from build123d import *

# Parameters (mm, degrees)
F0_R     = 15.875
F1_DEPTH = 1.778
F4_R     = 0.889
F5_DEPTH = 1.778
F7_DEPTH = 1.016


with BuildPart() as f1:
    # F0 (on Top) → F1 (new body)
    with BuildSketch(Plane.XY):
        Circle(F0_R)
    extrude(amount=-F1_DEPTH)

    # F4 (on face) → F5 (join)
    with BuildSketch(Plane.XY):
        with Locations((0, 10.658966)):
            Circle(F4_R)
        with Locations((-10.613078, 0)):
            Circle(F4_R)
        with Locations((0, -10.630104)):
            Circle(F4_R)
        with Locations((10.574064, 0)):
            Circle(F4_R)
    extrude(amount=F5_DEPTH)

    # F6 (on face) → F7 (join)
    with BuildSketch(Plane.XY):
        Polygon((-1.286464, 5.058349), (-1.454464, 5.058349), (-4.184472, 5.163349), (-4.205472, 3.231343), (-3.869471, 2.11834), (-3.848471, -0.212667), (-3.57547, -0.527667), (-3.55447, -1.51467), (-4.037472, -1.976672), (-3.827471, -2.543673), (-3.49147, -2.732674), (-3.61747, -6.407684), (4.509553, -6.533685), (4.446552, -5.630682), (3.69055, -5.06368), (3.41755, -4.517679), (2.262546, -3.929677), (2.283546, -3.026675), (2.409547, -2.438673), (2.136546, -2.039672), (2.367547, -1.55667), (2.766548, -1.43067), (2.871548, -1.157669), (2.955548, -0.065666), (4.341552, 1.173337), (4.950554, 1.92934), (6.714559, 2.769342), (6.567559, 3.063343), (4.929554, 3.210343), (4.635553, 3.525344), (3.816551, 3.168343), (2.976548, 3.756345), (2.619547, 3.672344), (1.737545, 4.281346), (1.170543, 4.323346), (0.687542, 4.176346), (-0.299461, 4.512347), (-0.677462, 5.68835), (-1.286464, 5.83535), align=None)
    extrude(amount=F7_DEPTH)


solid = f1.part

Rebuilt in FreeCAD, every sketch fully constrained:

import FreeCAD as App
import Part
import Sketcher
from FreeCAD import Vector
Q = App.Units.Quantity

doc = App.newDocument("Part")
body = doc.addObject("PartDesign::Body", "Body")

sketch1 = body.newObject("Sketcher::SketchObject", "Sketch")
sketch1.AttachmentSupport = (doc.getObject("XY_Plane"), [""])
sketch1.MapMode = "FlatFace"
sketch1.addGeometry(Part.Circle(Vector(0, 0, 0), Vector(0, 0, 1), 15.875), False)
sketch1.addConstraint([
    Sketcher.Constraint("Coincident", 0, 3, -1, 1),
    Sketcher.Constraint("Diameter", 0, Q("1.25 in")),
])
pad1 = body.newObject("PartDesign::Pad", "Pad")
pad1.Profile = sketch1
pad1.Length = Q("0.07 in")
pad1.Reversed = True

sketch2 = body.newObject("Sketcher::SketchObject", "Sketch001")
sketch2.AttachmentSupport = (doc.getObject("XY_Plane"), [""])
sketch2.MapMode = "FlatFace"
sketch2.addGeometry([
    Part.Circle(Vector(0, 10.658966, 0), Vector(0, 0, 1), 0.889),
    Part.Circle(Vector(-10.613078, 0, 0), Vector(0, 0, 1), 0.889),
    Part.Circle(Vector(0, -10.630104, 0), Vector(0, 0, 1), 0.889),
    Part.Circle(Vector(10.574064, 0, 0), Vector(0, 0, 1), 0.889),
], False)
sketch2.addConstraint([
    Sketcher.Constraint("Equal", 0, 1),
    Sketcher.Constraint("Equal", 1, 2),
    Sketcher.Constraint("Equal", 2, 3),
    Sketcher.Constraint("PointOnObject", 0, 3, -2),
    Sketcher.Constraint("PointOnObject", 1, 3, -1),
    Sketcher.Constraint("PointOnObject", 2, 3, -2),
    Sketcher.Constraint("PointOnObject", 3, 3, -1),
    Sketcher.Constraint("Diameter", 0, Q("0.07 in")),
    Sketcher.Constraint("DistanceY", 2, 3, 0, 3, Q("21.28907 mm")),
    Sketcher.Constraint("DistanceY", -1, 1, 0, 3, Q("10.658966 mm")),
    Sketcher.Constraint("DistanceX", 1, 3, -1, 1, Q("10.613078 mm")),
    Sketcher.Constraint("DistanceX", -1, 1, 3, 3, Q("10.574064 mm")),
])
pad2 = body.newObject("PartDesign::Pad", "Pad001")
pad2.Profile = sketch2
pad2.Length = Q("0.07 in")

sketch3 = body.newObject("Sketcher::SketchObject", "Sketch002")
sketch3.AttachmentSupport = (doc.getObject("XY_Plane"), [""])
sketch3.MapMode = "FlatFace"
sketch3.addGeometry([
    Part.LineSegment(Vector(-1.286464, 5.058349, 0), Vector(-1.454464, 5.058349, 0)),
    Part.LineSegment(Vector(-1.454464, 5.058349, 0), Vector(-4.184472, 5.163349, 0)),
    Part.LineSegment(Vector(-4.184472, 5.163349, 0), Vector(-4.205472, 3.231343, 0)),
    Part.LineSegment(Vector(-4.205472, 3.231343, 0), Vector(-3.869471, 2.11834, 0)),
    Part.LineSegment(Vector(-3.869471, 2.11834, 0), Vector(-3.848471, -0.212667, 0)),
    Part.LineSegment(Vector(-3.848471, -0.212667, 0), Vector(-3.57547, -0.527667, 0)),
    Part.LineSegment(Vector(-3.57547, -0.527667, 0), Vector(-3.55447, -1.51467, 0)),
    Part.LineSegment(Vector(-3.55447, -1.51467, 0), Vector(-4.037472, -1.976672, 0)),
    Part.LineSegment(Vector(-4.037472, -1.976672, 0), Vector(-3.827471, -2.543673, 0)),
    Part.LineSegment(Vector(-3.827471, -2.543673, 0), Vector(-3.49147, -2.732674, 0)),
    Part.LineSegment(Vector(-3.49147, -2.732674, 0), Vector(-3.61747, -6.407684, 0)),
    Part.LineSegment(Vector(-3.61747, -6.407684, 0), Vector(4.509553, -6.533685, 0)),
    Part.LineSegment(Vector(4.509553, -6.533685, 0), Vector(4.446552, -5.630682, 0)),
    Part.LineSegment(Vector(4.446552, -5.630682, 0), Vector(3.69055, -5.06368, 0)),
    Part.LineSegment(Vector(3.69055, -5.06368, 0), Vector(3.41755, -4.517679, 0)),
    Part.LineSegment(Vector(3.41755, -4.517679, 0), Vector(2.262546, -3.929677, 0)),
    Part.LineSegment(Vector(2.262546, -3.929677, 0), Vector(2.283546, -3.026675, 0)),
    Part.LineSegment(Vector(2.283546, -3.026675, 0), Vector(2.409547, -2.438673, 0)),
    Part.LineSegment(Vector(2.409547, -2.438673, 0), Vector(2.136546, -2.039672, 0)),
    Part.LineSegment(Vector(2.136546, -2.039672, 0), Vector(2.367547, -1.55667, 0)),
    Part.LineSegment(Vector(2.367547, -1.55667, 0), Vector(2.766548, -1.43067, 0)),
    Part.LineSegment(Vector(2.766548, -1.43067, 0), Vector(2.871548, -1.157669, 0)),
    Part.LineSegment(Vector(2.871548, -1.157669, 0), Vector(2.955548, -0.065666, 0)),
    Part.LineSegment(Vector(2.955548, -0.065666, 0), Vector(4.341552, 1.173337, 0)),
    Part.LineSegment(Vector(4.341552, 1.173337, 0), Vector(4.950554, 1.92934, 0)),
    Part.LineSegment(Vector(4.950554, 1.92934, 0), Vector(6.714559, 2.769342, 0)),
    Part.LineSegment(Vector(6.714559, 2.769342, 0), Vector(6.567559, 3.063343, 0)),
    Part.LineSegment(Vector(6.567559, 3.063343, 0), Vector(4.929554, 3.210343, 0)),
    Part.LineSegment(Vector(4.929554, 3.210343, 0), Vector(4.635553, 3.525344, 0)),
    Part.LineSegment(Vector(4.635553, 3.525344, 0), Vector(3.816551, 3.168343, 0)),
    Part.LineSegment(Vector(3.816551, 3.168343, 0), Vector(2.976548, 3.756345, 0)),
    Part.LineSegment(Vector(2.976548, 3.756345, 0), Vector(2.619547, 3.672344, 0)),
    Part.LineSegment(Vector(2.619547, 3.672344, 0), Vector(1.737545, 4.281346, 0)),
    Part.LineSegment(Vector(1.737545, 4.281346, 0), Vector(1.170543, 4.323346, 0)),
    Part.LineSegment(Vector(1.170543, 4.323346, 0), Vector(0.687542, 4.176346, 0)),
    Part.LineSegment(Vector(0.687542, 4.176346, 0), Vector(-0.299461, 4.512347, 0)),
    Part.LineSegment(Vector(-0.299461, 4.512347, 0), Vector(-0.677462, 5.68835, 0)),
    Part.LineSegment(Vector(-0.677462, 5.68835, 0), Vector(-1.286464, 5.83535, 0)),
    Part.LineSegment(Vector(-1.286464, 5.83535, 0), Vector(-1.286464, 5.058349, 0)),
], False)
sketch3.addConstraint([
    Sketcher.Constraint("Coincident", 0, 2, 1, 1),
    Sketcher.Constraint("Coincident", 1, 2, 2, 1),
    Sketcher.Constraint("Coincident", 2, 2, 3, 1),
    Sketcher.Constraint("Coincident", 3, 2, 4, 1),
    Sketcher.Constraint("Coincident", 4, 2, 5, 1),
    Sketcher.Constraint("Coincident", 5, 2, 6, 1),
    Sketcher.Constraint("Coincident", 6, 2, 7, 1),
    Sketcher.Constraint("Coincident", 7, 2, 8, 1),
    Sketcher.Constraint("Coincident", 8, 2, 9, 1),
    Sketcher.Constraint("Coincident", 9, 2, 10, 1),
    Sketcher.Constraint("Coincident", 10, 2, 11, 1),
    Sketcher.Constraint("Coincident", 11, 2, 12, 1),
    Sketcher.Constraint("Coincident", 12, 2, 13, 1),
    Sketcher.Constraint("Coincident", 13, 2, 14, 1),
    Sketcher.Constraint("Coincident", 14, 2, 15, 1),
    Sketcher.Constraint("Coincident", 15, 2, 16, 1),
    Sketcher.Constraint("Coincident", 16, 2, 17, 1),
    Sketcher.Constraint("Coincident", 17, 2, 18, 1),
    Sketcher.Constraint("Coincident", 18, 2, 19, 1),
    Sketcher.Constraint("Coincident", 19, 2, 20, 1),
    Sketcher.Constraint("Coincident", 20, 2, 21, 1),
    Sketcher.Constraint("Coincident", 21, 2, 22, 1),
    Sketcher.Constraint("Coincident", 22, 2, 23, 1),
    Sketcher.Constraint("Coincident", 23, 2, 24, 1),
    Sketcher.Constraint("Coincident", 24, 2, 25, 1),
    Sketcher.Constraint("Coincident", 25, 2, 26, 1),
    Sketcher.Constraint("Coincident", 26, 2, 27, 1),
    Sketcher.Constraint("Coincident", 27, 2, 28, 1),
    Sketcher.Constraint("Coincident", 28, 2, 29, 1),
    Sketcher.Constraint("Coincident", 29, 2, 30, 1),
    Sketcher.Constraint("Coincident", 30, 2, 31, 1),
    Sketcher.Constraint("Coincident", 31, 2, 32, 1),
    Sketcher.Constraint("Coincident", 32, 2, 33, 1),
    Sketcher.Constraint("Coincident", 33, 2, 34, 1),
    Sketcher.Constraint("Coincident", 34, 2, 35, 1),
    Sketcher.Constraint("Coincident", 35, 2, 36, 1),
    Sketcher.Constraint("Coincident", 36, 2, 37, 1),
    Sketcher.Constraint("Coincident", 37, 2, 38, 1),
    Sketcher.Constraint("Coincident", 38, 2, 0, 1),
    Sketcher.Constraint("Horizontal", 0),
    Sketcher.Constraint("Vertical", 38),
    Sketcher.Constraint("Parallel", 14, 26),
    Sketcher.Constraint("Distance", 11, Q("0.32 in")),
    Sketcher.Constraint("DistanceX", 0, 2, 0, 1, Q("0.168 mm")),
    Sketcher.Constraint("DistanceY", 38, 2, 38, 1, Q("0.777001 mm")),
    Sketcher.Constraint("Distance", 4, Q("2.331102 mm")),
    Sketcher.Constraint("Distance", 12, Q("0.905198 mm")),
    Sketcher.Constraint("Distance", 19, Q("0.535399 mm")),
    Sketcher.Constraint("DistanceY", 0, 2, 1, 2, Q("0.105 mm")),
    Sketcher.Constraint("DistanceX", 2, 2, 1, 2, Q("0.021 mm")),
    Sketcher.Constraint("DistanceX", 2, 2, 3, 2, Q("0.336001 mm")),
    Sketcher.Constraint("DistanceX", 3, 2, 4, 2, Q("0.021 mm")),
    Sketcher.Constraint("DistanceX", 4, 2, 5, 2, Q("0.273001 mm")),
    Sketcher.Constraint("DistanceY", 5, 2, 4, 2, Q("0.315 mm")),
    Sketcher.Constraint("DistanceX", 5, 2, 6, 2, Q("0.021 mm")),
    Sketcher.Constraint("DistanceX", 7, 2, 4, 2, Q("0.189001 mm")),
    Sketcher.Constraint("DistanceX", 7, 2, 8, 2, Q("0.210001 mm")),
    Sketcher.Constraint("DistanceY", 8, 2, 7, 2, Q("0.567001 mm")),
    Sketcher.Constraint("DistanceX", 8, 2, 9, 2, Q("0.336001 mm")),
    Sketcher.Constraint("DistanceY", 9, 2, 8, 2, Q("0.189001 mm")),
    Sketcher.Constraint("DistanceX", 10, 2, 9, 2, Q("0.126 mm")),
    Sketcher.Constraint("DistanceY", 11, 2, 10, 2, Q("0.126001 mm")),
    Sketcher.Constraint("DistanceX", 12, 2, 11, 2, Q("0.063001 mm")),
    Sketcher.Constraint("DistanceX", 13, 2, 12, 2, Q("0.756002 mm")),
    Sketcher.Constraint("DistanceX", 14, 2, 13, 2, Q("0.273 mm")),
    Sketcher.Constraint("DistanceY", 13, 2, 14, 2, Q("0.546001 mm")),
    Sketcher.Constraint("DistanceX", 15, 2, 16, 2, Q("0.021 mm")),
    Sketcher.Constraint("DistanceY", 15, 2, 16, 2, Q("0.903002 mm")),
    Sketcher.Constraint("DistanceX", 16, 2, 17, 2, Q("0.126001 mm")),
    Sketcher.Constraint("DistanceY", 16, 2, 17, 2, Q("0.588002 mm")),
    Sketcher.Constraint("DistanceX", 18, 2, 17, 2, Q("0.273001 mm")),
    Sketcher.Constraint("DistanceY", 17, 2, 18, 2, Q("0.399001 mm")),
    Sketcher.Constraint("DistanceX", 18, 2, 19, 2, Q("0.231001 mm")),
    Sketcher.Constraint("DistanceX", 19, 2, 20, 2, Q("0.399001 mm")),
    Sketcher.Constraint("DistanceY", 19, 2, 20, 2, Q("0.126 mm")),
    Sketcher.Constraint("DistanceX", 20, 2, 21, 2, Q("0.105 mm")),
    Sketcher.Constraint("DistanceY", 20, 2, 21, 2, Q("0.273001 mm")),
    Sketcher.Constraint("DistanceX", 21, 2, 22, 2, Q("0.084 mm")),
    Sketcher.Constraint("DistanceY", 24, 2, 25, 2, Q("0.840002 mm")),
    Sketcher.Constraint("DistanceX", 26, 2, 25, 2, Q("0.147 mm")),
    Sketcher.Constraint("DistanceX", 27, 2, 24, 2, Q("0.021 mm")),
    Sketcher.Constraint("DistanceY", 26, 2, 27, 2, Q("0.147 mm")),
    Sketcher.Constraint("DistanceX", 28, 2, 27, 2, Q("0.294001 mm")),
    Sketcher.Constraint("DistanceY", 27, 2, 28, 2, Q("0.315001 mm")),
    Sketcher.Constraint("DistanceX", 23, 2, 28, 2, Q("0.294001 mm")),
    Sketcher.Constraint("DistanceX", 29, 2, 28, 2, Q("0.819002 mm")),
    Sketcher.Constraint("DistanceY", 29, 2, 28, 2, Q("0.357001 mm")),
    Sketcher.Constraint("DistanceY", 29, 2, 30, 2, Q("0.588002 mm")),
    Sketcher.Constraint("DistanceX", 31, 2, 30, 2, Q("0.357001 mm")),
    Sketcher.Constraint("DistanceY", 31, 2, 30, 2, Q("0.084001 mm")),
    Sketcher.Constraint("DistanceX", 32, 2, 31, 2, Q("0.882002 mm")),
    Sketcher.Constraint("DistanceY", 30, 2, 32, 2, Q("0.525001 mm")),
    Sketcher.Constraint("DistanceY", 32, 2, 33, 2, Q("0.042 mm")),
    Sketcher.Constraint("DistanceX", 34, 2, 33, 2, Q("0.483001 mm")),
    Sketcher.Constraint("DistanceY", 34, 2, 33, 2, Q("0.147 mm")),
    Sketcher.Constraint("DistanceY", 34, 2, 35, 2, Q("0.336001 mm")),
    Sketcher.Constraint("DistanceY", 35, 2, 0, 2, Q("0.546002 mm")),
    Sketcher.Constraint("DistanceX", 0, 2, 36, 2, Q("0.777002 mm")),
    Sketcher.Constraint("DistanceY", 0, 2, 36, 2, Q("0.630001 mm")),
    Sketcher.Constraint("DistanceX", 36, 2, 35, 2, Q("0.378001 mm")),
    Sketcher.Constraint("Distance", 2, Q("1.93212 mm")),
    Sketcher.Constraint("Distance", 10, Q("3.677169 mm")),
    Sketcher.Constraint("Distance", 22, Q("1.095229 mm")),
    Sketcher.Constraint("Distance", 23, Q("1.859068 mm")),
    Sketcher.Constraint("DistanceY", -1, 1, 0, 2, Q("5.058349 mm")),
    Sketcher.Constraint("DistanceX", 3, 2, -1, 1, Q("3.869471 mm")),
    Sketcher.Constraint("DistanceY", -1, 1, 3, 2, Q("2.11834 mm")),
    Sketcher.Constraint("DistanceY", 6, 2, -1, 1, Q("1.51467 mm")),
    Sketcher.Constraint("DistanceY", 13, 2, -1, 1, Q("5.06368 mm")),
    Sketcher.Constraint("DistanceY", 18, 2, -1, 1, Q("2.039672 mm")),
    Sketcher.Constraint("DistanceX", -1, 1, 21, 2, Q("2.871548 mm")),
    Sketcher.Constraint("DistanceX", -1, 1, 25, 2, Q("6.714559 mm")),
    Sketcher.Constraint("DistanceX", -1, 1, 29, 2, Q("3.816551 mm")),
    Sketcher.Constraint("DistanceX", -1, 1, 30, 2, Q("2.976548 mm")),
    Sketcher.Constraint("DistanceX", -1, 1, 34, 2, Q("0.687542 mm")),
    Sketcher.Constraint("DistanceX", 35, 2, -1, 1, Q("0.299461 mm")),
    Sketcher.Constraint("DistanceY", 7, 2, 3, 2, Q("4.095012 mm")),
])
pad3 = body.newObject("PartDesign::Pad", "Pad002")
pad3.Profile = sketch3
pad3.Length = Q("0.04 in")

doc.recompute()
